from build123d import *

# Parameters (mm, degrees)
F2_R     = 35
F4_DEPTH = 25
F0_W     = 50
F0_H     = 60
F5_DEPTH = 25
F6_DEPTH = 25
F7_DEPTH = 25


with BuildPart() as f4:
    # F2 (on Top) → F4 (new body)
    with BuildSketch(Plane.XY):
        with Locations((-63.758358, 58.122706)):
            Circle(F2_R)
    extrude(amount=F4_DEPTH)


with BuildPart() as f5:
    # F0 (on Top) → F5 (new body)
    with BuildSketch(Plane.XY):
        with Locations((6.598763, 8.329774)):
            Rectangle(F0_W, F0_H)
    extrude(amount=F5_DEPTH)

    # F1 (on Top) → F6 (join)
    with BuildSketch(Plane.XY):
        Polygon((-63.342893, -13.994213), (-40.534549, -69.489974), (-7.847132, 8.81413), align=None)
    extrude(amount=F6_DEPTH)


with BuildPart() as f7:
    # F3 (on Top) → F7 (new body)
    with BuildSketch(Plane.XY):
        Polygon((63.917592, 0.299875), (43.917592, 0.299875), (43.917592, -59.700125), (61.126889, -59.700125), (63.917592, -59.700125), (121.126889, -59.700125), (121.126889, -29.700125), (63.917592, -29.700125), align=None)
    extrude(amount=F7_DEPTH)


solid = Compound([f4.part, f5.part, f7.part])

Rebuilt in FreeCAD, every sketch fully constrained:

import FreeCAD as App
import Part
import Sketcher

V = App.Vector


def add_polygon(sketch, points):
    """Adds a closed chain of lines whose ends are joined by coincident constraints."""
    first, n = sketch.GeometryCount, len(points)
    for a, b in zip(points, points[1:] + points[:1]):
        sketch.addGeometry(Part.LineSegment(App.Vector(*a, 0), App.Vector(*b, 0)), False)
    for i in range(n):
        sketch.addConstraint(Sketcher.Constraint("Coincident", first + i, 2, first + (i + 1) % n, 1))

doc = App.newDocument("Part")
params = doc.addObject("Spreadsheet::Sheet", "Params")
for row, (alias, value) in enumerate([
    ("sketch1_diameter", "70 mm"),
    ("pad1_length", "25 mm"),
    ("sketch2_width", "50 mm"),
    ("sketch2_height", "60 mm"),
    ("pad2_length", "25 mm"),
    ("sketch3_length", "60 mm"),
    ("pad3_length", "25 mm"),
    ("sketch4_width", "20 mm"),
    ("sketch4_height", "60 mm"),
    ("pad4_length", "25 mm"),
], start=1):
    params.set(f"A{row}", alias)
    params.set(f"B{row}", "=" + value)
    params.setAlias(f"B{row}", alias)

body = doc.addObject("PartDesign::Body", "Body")

# Sketch on XY plane
sketch1 = doc.addObject("Sketcher::SketchObject", "Sketch")
body.addObject(sketch1)
sketch1.AttachmentSupport = (doc.XY_Plane, [""])
sketch1.MapMode = "FlatFace"
sketch1.addGeometry(Part.Circle(V(-64, 58, 0), V(0, 0, 1), 35), False)
sketch1.addConstraint(Sketcher.Constraint("Diameter", 0, 70.0))
sketch1.addConstraint(Sketcher.Constraint("DistanceX", 0, 3, -1, 1, 63.758358))
sketch1.addConstraint(Sketcher.Constraint("DistanceY", -1, 1, 0, 3, 58.122706))
sketch1.setExpression("Constraints[0]", "Params.sketch1_diameter")
pad1 = doc.addObject("PartDesign::Pad", "Pad")
body.addObject(pad1)
pad1.Profile = sketch1
pad1.setExpression("Length", "Params.pad1_length")
body2 = doc.addObject("PartDesign::Body", "Body001")

# Sketch on XY plane
sketch2 = doc.addObject("Sketcher::SketchObject", "Sketch001")
body2.addObject(sketch2)
sketch2.AttachmentSupport = (doc.getObject("XY_Plane001"), [""])
sketch2.MapMode = "FlatFace"
add_polygon(sketch2, [(-18, 38), (-18, -22), (32, -22), (32, 38)])  # lines 0-3
sketch2.addConstraint(Sketcher.Constraint("Vertical", 0))
sketch2.addConstraint(Sketcher.Constraint("Horizontal", 1))
sketch2.addConstraint(Sketcher.Constraint("Vertical", 2))
sketch2.addConstraint(Sketcher.Constraint("Horizontal", 3))
sketch2.addConstraint(Sketcher.Constraint("DistanceX", 1, 1, 1, 2, 50.0))
sketch2.addConstraint(Sketcher.Constraint("DistanceY", 0, 2, 0, 1, 60.0))
sketch2.addConstraint(Sketcher.Constraint("DistanceX", 0, 2, -1, 1, 18.401237))
sketch2.addConstraint(Sketcher.Constraint("DistanceY", 0, 2, -1, 1, 21.670226))
sketch2.setExpression("Constraints[8]", "Params.sketch2_width")
sketch2.setExpression("Constraints[9]", "Params.sketch2_height")
pad2 = doc.addObject("PartDesign::Pad", "Pad001")
body2.addObject(pad2)
pad2.Profile = sketch2
pad2.setExpression("Length", "Params.pad2_length")

# Sketch on XY plane
sketch3 = doc.addObject("Sketcher::SketchObject", "Sketch002")
body2.addObject(sketch3)
sketch3.AttachmentSupport = (doc.getObject("XY_Plane001"), [""])
sketch3.MapMode = "FlatFace"
add_polygon(sketch3, [(-63, -14), (-41, -69), (-8, 9)])  # lines 0-2
sketch3.addConstraint(Sketcher.Constraint("Perpendicular", 0, 2))
sketch3.addConstraint(Sketcher.Constraint("Equal", 0, 2))
sketch3.addConstraint(Sketcher.Constraint("Distance", 0, 60.0))
sketch3.addConstraint(Sketcher.Constraint("DistanceX", 0, 2, -1, 1, 40.534549))
sketch3.addConstraint(Sketcher.Constraint("DistanceY", -1, 1, 1, 2, 8.81413))
sketch3.addConstraint(Sketcher.Constraint("DistanceX", 2, 2, 1, 2, 55.495761))
sketch3.setExpression("Constraints[5]", "Params.sketch3_length")
pad3 = doc.addObject("PartDesign::Pad", "Pad002")
body2.addObject(pad3)
pad3.Profile = sketch3
pad3.setExpression("Length", "Params.pad3_length")
body3 = doc.addObject("PartDesign::Body", "Body002")

# Sketch on XY plane
sketch4 = doc.addObject("Sketcher::SketchObject", "Sketch003")
body3.addObject(sketch4)
sketch4.AttachmentSupport = (doc.getObject("XY_Plane002"), [""])
sketch4.MapMode = "FlatFace"
add_polygon(sketch4, [(64, 0), (44, 0), (44, -60), (121, -60), (121, -30), (64, -30)])  # lines 0-5
sketch4.addConstraint(Sketcher.Constraint("Horizontal", 0))
sketch4.addConstraint(Sketcher.Constraint("Vertical", 1))
sketch4.addConstraint(Sketcher.Constraint("Horizontal", 2))
sketch4.addConstraint(Sketcher.Constraint("Vertical", 3))
sketch4.addConstraint(Sketcher.Constraint("Horizontal", 4))
sketch4.addConstraint(Sketcher.Constraint("Vertical", 5))
sketch4.addConstraint(Sketcher.Constraint("Equal", 3, 5))
sketch4.addConstraint(Sketcher.Constraint("DistanceX", 0, 2, 0, 1, 20.0))
sketch4.addConstraint(Sketcher.Constraint("DistanceY", 1, 2, 1, 1, 60.0))
sketch4.addConstraint(Sketcher.Constraint("DistanceX", 2, 1, 2, 2, 77.209297))
sketch4.addConstraint(Sketcher.Constraint("DistanceX", -1, 1, 2, 2, 121.126889))
sketch4.addConstraint(Sketcher.Constraint("DistanceY", -1, 1, 0, 2, 0.299875))
sketch4.setExpression("Constraints[13]", "Params.sketch4_width")
sketch4.setExpression("Constraints[14]", "Params.sketch4_height")
pad4 = doc.addObject("PartDesign::Pad", "Pad003")
body3.addObject(pad4)
pad4.Profile = sketch4
pad4.setExpression("Length", "Params.pad4_length")

doc.recompute()
